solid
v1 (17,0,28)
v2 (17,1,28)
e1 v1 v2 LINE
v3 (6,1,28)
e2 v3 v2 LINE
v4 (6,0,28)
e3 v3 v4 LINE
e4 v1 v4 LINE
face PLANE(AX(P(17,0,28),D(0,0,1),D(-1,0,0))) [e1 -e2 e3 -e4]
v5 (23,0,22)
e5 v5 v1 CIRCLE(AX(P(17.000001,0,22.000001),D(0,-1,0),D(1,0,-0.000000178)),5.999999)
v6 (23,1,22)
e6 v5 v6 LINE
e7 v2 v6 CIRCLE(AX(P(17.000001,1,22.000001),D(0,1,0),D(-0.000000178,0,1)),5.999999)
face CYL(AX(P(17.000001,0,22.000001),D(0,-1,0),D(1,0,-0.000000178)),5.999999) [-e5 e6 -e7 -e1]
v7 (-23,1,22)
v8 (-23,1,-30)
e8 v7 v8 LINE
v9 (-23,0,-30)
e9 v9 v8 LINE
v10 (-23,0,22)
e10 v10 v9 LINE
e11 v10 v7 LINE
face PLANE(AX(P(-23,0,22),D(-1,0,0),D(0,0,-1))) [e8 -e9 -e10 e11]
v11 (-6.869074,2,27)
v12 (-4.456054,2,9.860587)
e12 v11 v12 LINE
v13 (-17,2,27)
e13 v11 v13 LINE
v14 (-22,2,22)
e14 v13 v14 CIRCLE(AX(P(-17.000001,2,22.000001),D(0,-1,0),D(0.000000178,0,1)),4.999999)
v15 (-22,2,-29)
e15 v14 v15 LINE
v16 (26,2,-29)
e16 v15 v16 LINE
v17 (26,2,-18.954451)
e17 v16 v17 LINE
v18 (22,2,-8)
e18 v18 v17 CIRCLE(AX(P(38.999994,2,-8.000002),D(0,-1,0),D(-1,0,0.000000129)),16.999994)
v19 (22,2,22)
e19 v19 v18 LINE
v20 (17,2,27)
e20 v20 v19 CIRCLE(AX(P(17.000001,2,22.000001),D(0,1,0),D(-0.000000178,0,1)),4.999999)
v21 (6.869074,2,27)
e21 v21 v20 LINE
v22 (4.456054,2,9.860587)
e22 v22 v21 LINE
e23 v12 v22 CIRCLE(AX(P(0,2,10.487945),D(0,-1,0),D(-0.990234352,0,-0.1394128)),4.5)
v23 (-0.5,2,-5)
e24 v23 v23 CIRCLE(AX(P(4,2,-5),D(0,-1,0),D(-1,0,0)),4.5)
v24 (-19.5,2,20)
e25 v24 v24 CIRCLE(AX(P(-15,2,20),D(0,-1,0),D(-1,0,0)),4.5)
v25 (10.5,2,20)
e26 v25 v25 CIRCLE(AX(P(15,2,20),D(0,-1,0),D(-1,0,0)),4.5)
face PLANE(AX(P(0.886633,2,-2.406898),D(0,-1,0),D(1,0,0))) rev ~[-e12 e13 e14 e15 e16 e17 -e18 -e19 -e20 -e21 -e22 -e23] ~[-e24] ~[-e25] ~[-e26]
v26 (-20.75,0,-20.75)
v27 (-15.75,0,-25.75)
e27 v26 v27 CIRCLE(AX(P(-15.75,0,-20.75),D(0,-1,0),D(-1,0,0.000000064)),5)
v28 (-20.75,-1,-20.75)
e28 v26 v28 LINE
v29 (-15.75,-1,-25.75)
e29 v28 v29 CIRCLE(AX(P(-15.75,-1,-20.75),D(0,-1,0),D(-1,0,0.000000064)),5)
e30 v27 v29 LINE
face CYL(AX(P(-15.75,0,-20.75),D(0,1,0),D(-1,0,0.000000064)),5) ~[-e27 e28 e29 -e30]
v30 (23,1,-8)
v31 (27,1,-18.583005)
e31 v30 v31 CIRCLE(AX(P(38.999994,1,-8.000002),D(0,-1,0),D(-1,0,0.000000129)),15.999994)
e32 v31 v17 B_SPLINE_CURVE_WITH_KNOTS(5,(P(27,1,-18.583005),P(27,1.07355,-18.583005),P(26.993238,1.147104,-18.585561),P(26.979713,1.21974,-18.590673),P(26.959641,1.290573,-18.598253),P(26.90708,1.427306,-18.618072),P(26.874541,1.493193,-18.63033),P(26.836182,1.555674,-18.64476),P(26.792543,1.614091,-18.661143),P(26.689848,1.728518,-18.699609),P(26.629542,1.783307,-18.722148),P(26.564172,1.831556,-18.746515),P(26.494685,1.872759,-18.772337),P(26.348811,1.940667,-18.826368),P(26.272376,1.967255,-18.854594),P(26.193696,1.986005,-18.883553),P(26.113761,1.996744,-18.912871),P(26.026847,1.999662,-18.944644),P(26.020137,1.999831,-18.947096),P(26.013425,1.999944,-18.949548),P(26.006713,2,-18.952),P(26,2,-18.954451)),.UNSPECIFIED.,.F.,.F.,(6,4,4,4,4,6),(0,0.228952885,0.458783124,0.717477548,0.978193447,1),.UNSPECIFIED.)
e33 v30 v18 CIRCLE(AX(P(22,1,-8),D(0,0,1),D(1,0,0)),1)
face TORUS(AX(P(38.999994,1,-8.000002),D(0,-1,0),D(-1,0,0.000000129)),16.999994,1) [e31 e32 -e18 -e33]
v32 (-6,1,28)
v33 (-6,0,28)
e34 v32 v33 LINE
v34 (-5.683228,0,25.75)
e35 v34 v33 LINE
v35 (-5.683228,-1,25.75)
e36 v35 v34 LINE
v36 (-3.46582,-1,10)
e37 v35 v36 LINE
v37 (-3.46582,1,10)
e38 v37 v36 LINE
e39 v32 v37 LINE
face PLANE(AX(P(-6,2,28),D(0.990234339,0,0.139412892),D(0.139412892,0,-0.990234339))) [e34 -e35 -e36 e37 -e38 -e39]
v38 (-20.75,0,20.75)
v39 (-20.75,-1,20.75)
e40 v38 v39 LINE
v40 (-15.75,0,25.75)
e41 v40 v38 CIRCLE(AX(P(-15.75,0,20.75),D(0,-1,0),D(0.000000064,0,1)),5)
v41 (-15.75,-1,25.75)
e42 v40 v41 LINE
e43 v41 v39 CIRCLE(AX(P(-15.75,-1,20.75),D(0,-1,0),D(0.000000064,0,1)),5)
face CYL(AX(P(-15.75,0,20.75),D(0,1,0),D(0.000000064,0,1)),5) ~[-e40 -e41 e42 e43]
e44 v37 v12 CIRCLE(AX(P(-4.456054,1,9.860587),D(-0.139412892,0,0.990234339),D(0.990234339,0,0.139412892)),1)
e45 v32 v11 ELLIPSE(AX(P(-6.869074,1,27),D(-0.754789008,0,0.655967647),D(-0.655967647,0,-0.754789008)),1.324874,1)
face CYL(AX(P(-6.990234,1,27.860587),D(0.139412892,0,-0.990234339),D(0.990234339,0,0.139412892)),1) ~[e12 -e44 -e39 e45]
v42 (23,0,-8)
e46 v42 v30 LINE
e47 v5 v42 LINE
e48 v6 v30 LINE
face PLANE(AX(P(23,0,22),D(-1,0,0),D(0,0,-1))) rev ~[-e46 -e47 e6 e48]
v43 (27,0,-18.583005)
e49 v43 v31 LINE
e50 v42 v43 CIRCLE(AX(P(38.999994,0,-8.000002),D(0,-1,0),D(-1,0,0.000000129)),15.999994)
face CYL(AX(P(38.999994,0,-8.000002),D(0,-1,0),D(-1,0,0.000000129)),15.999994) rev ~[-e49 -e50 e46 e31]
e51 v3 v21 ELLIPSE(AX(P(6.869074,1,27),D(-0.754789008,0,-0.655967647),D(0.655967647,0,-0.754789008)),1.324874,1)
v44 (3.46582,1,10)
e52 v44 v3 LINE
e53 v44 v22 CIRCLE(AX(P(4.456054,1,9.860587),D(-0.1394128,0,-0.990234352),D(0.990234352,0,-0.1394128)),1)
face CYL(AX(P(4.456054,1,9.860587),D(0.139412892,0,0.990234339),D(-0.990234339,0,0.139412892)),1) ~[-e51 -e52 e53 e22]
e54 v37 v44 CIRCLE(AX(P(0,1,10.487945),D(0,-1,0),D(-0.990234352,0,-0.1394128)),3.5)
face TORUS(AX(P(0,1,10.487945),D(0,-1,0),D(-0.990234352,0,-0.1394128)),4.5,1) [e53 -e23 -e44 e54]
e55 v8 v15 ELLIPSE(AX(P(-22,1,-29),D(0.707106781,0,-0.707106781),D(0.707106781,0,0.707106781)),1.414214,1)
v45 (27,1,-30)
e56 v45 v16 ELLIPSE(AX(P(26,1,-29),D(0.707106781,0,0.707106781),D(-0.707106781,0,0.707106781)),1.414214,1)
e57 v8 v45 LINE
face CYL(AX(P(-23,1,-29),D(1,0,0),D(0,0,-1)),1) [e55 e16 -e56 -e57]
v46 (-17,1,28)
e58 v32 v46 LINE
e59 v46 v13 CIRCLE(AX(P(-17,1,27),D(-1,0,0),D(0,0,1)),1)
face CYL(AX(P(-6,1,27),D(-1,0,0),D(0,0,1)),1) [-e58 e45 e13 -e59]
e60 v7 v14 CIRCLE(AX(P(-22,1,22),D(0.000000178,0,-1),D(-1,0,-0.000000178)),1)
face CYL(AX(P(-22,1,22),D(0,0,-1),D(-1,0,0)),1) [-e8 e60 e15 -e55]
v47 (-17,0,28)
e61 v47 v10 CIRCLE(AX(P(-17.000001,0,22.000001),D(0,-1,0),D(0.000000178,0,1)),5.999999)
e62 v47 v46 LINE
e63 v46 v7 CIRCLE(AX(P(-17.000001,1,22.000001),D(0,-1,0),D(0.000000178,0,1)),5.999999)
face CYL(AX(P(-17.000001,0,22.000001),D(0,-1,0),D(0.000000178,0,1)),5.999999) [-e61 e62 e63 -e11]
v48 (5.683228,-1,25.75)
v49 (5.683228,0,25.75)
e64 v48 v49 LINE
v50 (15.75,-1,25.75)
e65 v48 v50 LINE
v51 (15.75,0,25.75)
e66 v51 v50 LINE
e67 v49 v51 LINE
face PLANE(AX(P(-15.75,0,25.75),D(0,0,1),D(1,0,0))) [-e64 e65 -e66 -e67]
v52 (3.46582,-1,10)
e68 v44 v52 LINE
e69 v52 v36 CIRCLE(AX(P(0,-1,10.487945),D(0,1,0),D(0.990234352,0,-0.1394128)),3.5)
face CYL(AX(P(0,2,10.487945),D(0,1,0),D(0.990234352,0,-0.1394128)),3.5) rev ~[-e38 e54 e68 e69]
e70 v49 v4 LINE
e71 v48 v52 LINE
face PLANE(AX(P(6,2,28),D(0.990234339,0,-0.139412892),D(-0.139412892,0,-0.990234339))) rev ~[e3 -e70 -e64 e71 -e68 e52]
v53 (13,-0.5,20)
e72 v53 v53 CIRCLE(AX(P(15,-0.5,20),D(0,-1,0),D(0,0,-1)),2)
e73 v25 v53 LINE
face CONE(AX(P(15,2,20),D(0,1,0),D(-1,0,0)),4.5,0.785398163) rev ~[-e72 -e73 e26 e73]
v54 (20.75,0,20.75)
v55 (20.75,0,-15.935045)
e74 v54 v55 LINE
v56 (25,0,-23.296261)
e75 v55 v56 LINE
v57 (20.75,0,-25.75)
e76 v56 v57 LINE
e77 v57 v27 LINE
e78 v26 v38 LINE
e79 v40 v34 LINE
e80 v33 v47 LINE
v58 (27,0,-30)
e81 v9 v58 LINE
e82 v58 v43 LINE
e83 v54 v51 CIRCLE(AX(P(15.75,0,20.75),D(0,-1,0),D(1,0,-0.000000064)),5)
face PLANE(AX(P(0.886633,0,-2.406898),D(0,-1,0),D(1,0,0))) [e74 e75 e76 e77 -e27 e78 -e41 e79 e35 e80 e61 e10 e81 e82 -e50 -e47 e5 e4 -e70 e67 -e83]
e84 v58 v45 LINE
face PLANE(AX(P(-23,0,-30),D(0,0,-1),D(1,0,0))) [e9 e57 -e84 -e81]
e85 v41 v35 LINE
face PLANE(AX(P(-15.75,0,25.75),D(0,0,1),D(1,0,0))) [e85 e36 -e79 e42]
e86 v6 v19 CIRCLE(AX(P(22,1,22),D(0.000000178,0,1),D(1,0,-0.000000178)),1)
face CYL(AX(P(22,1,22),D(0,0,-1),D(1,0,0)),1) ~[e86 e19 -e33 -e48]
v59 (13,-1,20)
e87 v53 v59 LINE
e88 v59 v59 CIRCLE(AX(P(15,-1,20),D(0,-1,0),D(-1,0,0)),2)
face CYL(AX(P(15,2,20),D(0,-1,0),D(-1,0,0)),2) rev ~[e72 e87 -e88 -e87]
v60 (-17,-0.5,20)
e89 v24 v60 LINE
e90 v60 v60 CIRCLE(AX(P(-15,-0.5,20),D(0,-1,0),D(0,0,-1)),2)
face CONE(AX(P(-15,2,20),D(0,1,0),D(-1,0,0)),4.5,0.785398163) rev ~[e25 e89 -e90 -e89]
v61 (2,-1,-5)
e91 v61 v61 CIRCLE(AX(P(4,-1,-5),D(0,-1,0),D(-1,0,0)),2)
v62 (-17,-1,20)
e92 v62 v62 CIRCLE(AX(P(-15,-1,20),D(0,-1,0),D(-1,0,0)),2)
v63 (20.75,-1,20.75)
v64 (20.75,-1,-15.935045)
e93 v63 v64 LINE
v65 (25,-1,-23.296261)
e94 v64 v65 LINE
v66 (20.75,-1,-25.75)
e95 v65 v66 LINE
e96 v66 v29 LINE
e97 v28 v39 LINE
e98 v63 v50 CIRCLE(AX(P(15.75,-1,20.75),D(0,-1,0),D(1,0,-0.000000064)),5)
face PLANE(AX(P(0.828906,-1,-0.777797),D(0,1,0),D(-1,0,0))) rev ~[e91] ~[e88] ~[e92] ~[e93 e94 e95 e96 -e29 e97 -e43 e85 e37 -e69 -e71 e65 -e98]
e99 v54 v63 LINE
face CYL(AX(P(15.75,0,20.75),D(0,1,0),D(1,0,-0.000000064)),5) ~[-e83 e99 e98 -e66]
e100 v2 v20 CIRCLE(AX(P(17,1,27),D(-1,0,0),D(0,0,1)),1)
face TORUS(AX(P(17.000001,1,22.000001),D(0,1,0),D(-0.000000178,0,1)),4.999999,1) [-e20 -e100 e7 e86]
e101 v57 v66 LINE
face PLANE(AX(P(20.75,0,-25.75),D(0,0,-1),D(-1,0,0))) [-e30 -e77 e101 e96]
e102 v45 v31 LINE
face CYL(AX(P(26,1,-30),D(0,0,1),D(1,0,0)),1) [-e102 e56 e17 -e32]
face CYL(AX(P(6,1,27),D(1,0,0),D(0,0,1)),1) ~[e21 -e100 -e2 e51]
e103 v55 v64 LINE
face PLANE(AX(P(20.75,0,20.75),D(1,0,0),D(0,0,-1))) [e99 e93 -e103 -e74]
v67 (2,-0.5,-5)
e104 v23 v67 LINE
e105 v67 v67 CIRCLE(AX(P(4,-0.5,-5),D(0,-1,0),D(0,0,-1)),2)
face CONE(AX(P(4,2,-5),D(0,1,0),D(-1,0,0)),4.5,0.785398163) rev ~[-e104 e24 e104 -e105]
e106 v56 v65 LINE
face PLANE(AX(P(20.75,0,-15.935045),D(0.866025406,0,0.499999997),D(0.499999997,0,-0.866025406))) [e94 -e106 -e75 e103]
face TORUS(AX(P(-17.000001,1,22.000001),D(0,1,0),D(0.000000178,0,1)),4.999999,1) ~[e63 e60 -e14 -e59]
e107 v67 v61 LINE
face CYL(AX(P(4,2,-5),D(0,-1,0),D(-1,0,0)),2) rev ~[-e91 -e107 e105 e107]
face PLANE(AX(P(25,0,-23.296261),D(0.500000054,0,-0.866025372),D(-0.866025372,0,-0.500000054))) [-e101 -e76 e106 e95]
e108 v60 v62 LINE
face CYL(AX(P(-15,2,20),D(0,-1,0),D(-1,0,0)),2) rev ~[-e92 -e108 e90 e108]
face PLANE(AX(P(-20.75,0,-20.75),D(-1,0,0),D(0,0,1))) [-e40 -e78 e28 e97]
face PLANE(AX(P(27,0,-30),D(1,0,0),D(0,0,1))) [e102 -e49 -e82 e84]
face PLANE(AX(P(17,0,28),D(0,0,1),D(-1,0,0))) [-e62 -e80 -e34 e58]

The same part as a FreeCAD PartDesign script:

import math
import FreeCAD as App
import Part
import Sketcher
from FreeCAD import Vector
Q = App.Units.Quantity


def edges_at(feature, points):
    """Names of the edges that pass closest to the given points."""
    edges = feature.Shape.Edges
    near = lambda p: min(range(len(edges)), key=lambda i: edges[i].distToShape(Part.Vertex(*p))[0])
    return sorted({f"Edge{near(p) + 1}" for p in points})

doc = App.newDocument("Part")
body = doc.addObject("PartDesign::Body", "Body")

sketch1 = body.newObject("Sketcher::SketchObject", "Sketch")
sketch1.AttachmentSupport = (doc.getObject("XZ_Plane"), [""])
sketch1.MapMode = "FlatFace"
sketch1.addGeometry(Part.LineSegment(Vector(17, 28, 0), Vector(-17, 28, 0)), False)
sketch1.addGeometry(Part.ArcOfCircle(Part.Circle(Vector(-17.000001, 22.000001, 0), Vector(0, 0, 1), 5.999999), math.radians(89.99999), math.radians(180.00001)), False)
sketch1.addGeometry(Part.LineSegment(Vector(-23, 22, 0), Vector(-23, -30, 0)), False)
sketch1.addGeometry(Part.LineSegment(Vector(-23, -30, 0), Vector(27, -30, 0)), False)
sketch1.addGeometry(Part.LineSegment(Vector(27, -30, 0), Vector(27, -18.583005, 0)), False)
sketch1.addGeometry(Part.ArcOfCircle(Part.Circle(Vector(38.999994, -8.000002, 0), Vector(0, 0, 1), 15.999994), math.radians(179.999993), math.radians(221.40963)), False)
sketch1.addGeometry(Part.LineSegment(Vector(23, -8, 0), Vector(23, 22, 0)), False)
sketch1.addGeometry(Part.ArcOfCircle(Part.Circle(Vector(17.000001, 22.000001, 0), Vector(0, 0, 1), 5.999999), math.radians(-0.00001), math.radians(90.00001)), False)
sketch1.addConstraint(Sketcher.Constraint("Tangent", 0, 2, 1, 1))
sketch1.addConstraint(Sketcher.Constraint("Tangent", 1, 2, 2, 1))
sketch1.addConstraint(Sketcher.Constraint("Coincident", 2, 2, 3, 1))
sketch1.addConstraint(Sketcher.Constraint("Coincident", 3, 2, 4, 1))
sketch1.addConstraint(Sketcher.Constraint("Coincident", 4, 2, 5, 2))
sketch1.addConstraint(Sketcher.Constraint("Tangent", 5, 1, 6, 1))
sketch1.addConstraint(Sketcher.Constraint("Tangent", 6, 2, 7, 1))
sketch1.addConstraint(Sketcher.Constraint("Tangent", 7, 2, 0, 1))
sketch1.addConstraint(Sketcher.Constraint("Horizontal", 0))
sketch1.addConstraint(Sketcher.Constraint("Vertical", 2))
sketch1.addConstraint(Sketcher.Constraint("Horizontal", 3))
sketch1.addConstraint(Sketcher.Constraint("Vertical", 4))
sketch1.addConstraint(Sketcher.Constraint("Vertical", 6))
sketch1.addConstraint(Sketcher.Constraint("Equal", 1, 7))
sketch1.addConstraint(Sketcher.Constraint("Radius", 1, 5.999999))
sketch1.addConstraint(Sketcher.Constraint("DistanceX", 0, 2, 0, 1, 34.0))
sketch1.addConstraint(Sketcher.Constraint("DistanceX", 3, 1, 3, 2, 50.0))
sketch1.addConstraint(Sketcher.Constraint("DistanceY", 2, 2, 2, 1, 52.0))
sketch1.addConstraint(Sketcher.Constraint("DistanceY", 6, 1, 6, 2, 30.0))
sketch1.addConstraint(Sketcher.Constraint("DistanceX", 1, 3, -1, 1, 17.000001))
sketch1.addConstraint(Sketcher.Constraint("DistanceY", -1, 1, 1, 3, 22.000001))
sketch1.addConstraint(Sketcher.Constraint("Radius", 5, 15.999994))
pad1 = body.newObject("PartDesign::Pad", "Pad")
pad1.Profile = sketch1
pad1.Length = 2
pad1.Reversed = True

sketch2 = body.newObject("Sketcher::SketchObject", "Sketch001")
sketch2.AttachmentSupport = (doc.getObject("XZ_Plane"), [""])
sketch2.MapMode = "FlatFace"
sketch2.addGeometry(Part.LineSegment(Vector(-20.75, 20.75, 0), Vector(-20.75, -20.75, 0)), False)
sketch2.addGeometry(Part.ArcOfCircle(Part.Circle(Vector(-15.75, -20.75, 0), Vector(0, 0, 1), 5), math.radians(179.999996), math.radians(270.000004)), False)
sketch2.addGeometry(Part.LineSegment(Vector(-15.75, -25.75, 0), Vector(20.75, -25.75, 0)), False)
sketch2.addGeometry(Part.LineSegment(Vector(20.75, -25.75, 0), Vector(25, -23.296261, 0)), False)
sketch2.addGeometry(Part.LineSegment(Vector(25, -23.296261, 0), Vector(20.75, -15.935045, 0)), False)
sketch2.addGeometry(Part.LineSegment(Vector(20.75, -15.935045, 0), Vector(20.75, 20.75, 0)), False)
sketch2.addGeometry(Part.ArcOfCircle(Part.Circle(Vector(15.75, 20.75, 0), Vector(0, 0, 1), 5), math.radians(-0.000004), math.radians(90.000004)), False)
sketch2.addGeometry(Part.LineSegment(Vector(15.75, 25.75, 0), Vector(-15.75, 25.75, 0)), False)
sketch2.addGeometry(Part.ArcOfCircle(Part.Circle(Vector(-15.75, 20.75, 0), Vector(0, 0, 1), 5), math.radians(89.999996), math.radians(180.000004)), False)
sketch2.addConstraint(Sketcher.Constraint("Tangent", 0, 2, 1, 1))
sketch2.addConstraint(Sketcher.Constraint("Tangent", 1, 2, 2, 1))
sketch2.addConstraint(Sketcher.Constraint("Coincident", 2, 2, 3, 1))
sketch2.addConstraint(Sketcher.Constraint("Coincident", 3, 2, 4, 1))
sketch2.addConstraint(Sketcher.Constraint("Coincident", 4, 2, 5, 1))
sketch2.addConstraint(Sketcher.Constraint("Tangent", 5, 2, 6, 1))
sketch2.addConstraint(Sketcher.Constraint("Tangent", 6, 2, 7, 1))
sketch2.addConstraint(Sketcher.Constraint("Tangent", 7, 2, 8, 1))
sketch2.addConstraint(Sketcher.Constraint("Tangent", 8, 2, 0, 1))
sketch2.addConstraint(Sketcher.Constraint("Vertical", 0))
sketch2.addConstraint(Sketcher.Constraint("Horizontal", 2))
sketch2.addConstraint(Sketcher.Constraint("Vertical", 5))
sketch2.addConstraint(Sketcher.Constraint("Horizontal", 7))
sketch2.addConstraint(Sketcher.Constraint("Equal", 1, 6))
sketch2.addConstraint(Sketcher.Constraint("Equal", 6, 8))
sketch2.addConstraint(Sketcher.Constraint("Symmetric", 1, 3, 6, 3, -1, 1))
sketch2.addConstraint(Sketcher.Constraint("Perpendicular", 3, 4))
sketch2.addConstraint(Sketcher.Constraint("Vertical", 2, 2, 4, 2))
sketch2.addConstraint(Sketcher.Constraint("Radius", 1, 5.0))
sketch2.addConstraint(Sketcher.Constraint("Angle", 3, Q("30.000004 deg")))
sketch2.addConstraint(Sketcher.Constraint("DistanceX", 2, 1, 2, 2, 36.5))
sketch2.addConstraint(Sketcher.Constraint("DistanceY", 0, 2, 0, 1, 41.5))
sketch2.addConstraint(Sketcher.Constraint("DistanceX", -1, 1, 3, 2, 25.0))
pad2 = body.newObject("PartDesign::Pad", "Pad001")
pad2.Profile = sketch2
pad2.Length = 1

sketch3 = body.newObject("Sketcher::SketchObject", "Sketch002")
sketch3.AttachmentSupport = (doc.getObject("XZ_Plane"), [""])
sketch3.MapMode = "FlatFace"
sketch3.AttachmentOffset = App.Placement(Vector(0, 0, -2), App.Rotation())
sketch3.addGeometry(Part.LineSegment(Vector(-6, 28, 0), Vector(6, 28, 0)), False)
sketch3.addGeometry(Part.LineSegment(Vector(6, 28, 0), Vector(3.46582, 10, 0)), False)
sketch3.addGeometry(Part.ArcOfCircle(Part.Circle(Vector(0, 10.487945, 0), Vector(0, 0, 1), 3.5), math.radians(-171.986131), math.radians(-8.013869)), False)
sketch3.addGeometry(Part.LineSegment(Vector(-3.46582, 10, 0), Vector(-6, 28, 0)), False)
sketch3.addConstraint(Sketcher.Constraint("Coincident", 0, 2, 1, 1))
sketch3.addConstraint(Sketcher.Constraint("Tangent", 1, 2, 2, 2))
sketch3.addConstraint(Sketcher.Constraint("Tangent", 2, 1, 3, 1))
sketch3.addConstraint(Sketcher.Constraint("Coincident", 3, 2, 0, 1))
sketch3.addConstraint(Sketcher.Constraint("Horizontal", 0))
sketch3.addConstraint(Sketcher.Constraint("Symmetric", 1, 2, 2, 1, -2))
sketch3.addConstraint(Sketcher.Constraint("Radius", 2, 3.5))
sketch3.addConstraint(Sketcher.Constraint("DistanceX", 0, 1, 0, 2, 12.0))
sketch3.addConstraint(Sketcher.Constraint("DistanceY", -1, 1, 0, 2, 28.0))
sketch3.addConstraint(Sketcher.Constraint("DistanceY", -1, 1, 1, 2, 10.0))
pocket1 = body.newObject("PartDesign::Pocket", "Pocket")
pocket1.Profile = sketch3
pocket1.Type = "ThroughAll"
pocket1.Reversed = True

sketch4 = body.newObject("Sketcher::SketchObject", "Sketch003")
sketch4.AttachmentSupport = (doc.getObject("XZ_Plane"), [""])
sketch4.MapMode = "FlatFace"
sketch4.AttachmentOffset = App.Placement(Vector(0, 0, -2), App.Rotation())
sketch4.addGeometry(Part.Circle(Vector(-15, 20, 0), Vector(0, 0, 1), 2), False)
sketch4.addGeometry(Part.Circle(Vector(15, 20, 0), Vector(0, 0, 1), 2), False)
sketch4.addGeometry(Part.Circle(Vector(4, -5, 0), Vector(0, 0, 1), 2), False)
sketch4.addConstraint(Sketcher.Constraint("Equal", 0, 1))
sketch4.addConstraint(Sketcher.Constraint("Equal", 1, 2))
sketch4.addConstraint(Sketcher.Constraint("Symmetric", 0, 3, 1, 3, -2))
sketch4.addConstraint(Sketcher.Constraint("Diameter", 0, 4.0))
sketch4.addConstraint(Sketcher.Constraint("DistanceX", 0, 3, -1, 1, 15.0))
sketch4.addConstraint(Sketcher.Constraint("DistanceY", -1, 1, 0, 3, 20.0))
sketch4.addConstraint(Sketcher.Constraint("DistanceX", -1, 1, 2, 3, 4.0))
sketch4.addConstraint(Sketcher.Constraint("DistanceY", 2, 3, -1, 1, 5.0))
doc.recompute()
hole = body.newObject("PartDesign::Hole", "Hole")
hole.Profile = sketch4
hole.ThreadType = "None"
hole.Diameter = 4
hole.DepthType = "Dimension"
hole.Depth = 25
hole.DrillPoint = "Flat"
hole.HoleCutType = "Countersink"
hole.HoleCutDiameter = 9
hole.HoleCutCountersinkAngle = 90
hole.Reversed = True
doc.recompute()

fillet = body.newObject("PartDesign::Fillet", "Fillet")
fillet.Base = (hole, edges_at(hole, [
    (23, 2, 7),
    (24.033, 2, -13.657),
    (27, 2, -24.292),
    (2, 2, -30),
    (-23, 2, -4),
    (-21.243, 2, 26.243),
    (-11.5, 2, 28),
    (-4.733, 2, 19),
    (0, 2, 6.988),
    (4.733, 2, 19),
    (11.5, 2, 28),
    (21.243, 2, 26.243),
]))
fillet.Radius = 1

doc.recompute()
